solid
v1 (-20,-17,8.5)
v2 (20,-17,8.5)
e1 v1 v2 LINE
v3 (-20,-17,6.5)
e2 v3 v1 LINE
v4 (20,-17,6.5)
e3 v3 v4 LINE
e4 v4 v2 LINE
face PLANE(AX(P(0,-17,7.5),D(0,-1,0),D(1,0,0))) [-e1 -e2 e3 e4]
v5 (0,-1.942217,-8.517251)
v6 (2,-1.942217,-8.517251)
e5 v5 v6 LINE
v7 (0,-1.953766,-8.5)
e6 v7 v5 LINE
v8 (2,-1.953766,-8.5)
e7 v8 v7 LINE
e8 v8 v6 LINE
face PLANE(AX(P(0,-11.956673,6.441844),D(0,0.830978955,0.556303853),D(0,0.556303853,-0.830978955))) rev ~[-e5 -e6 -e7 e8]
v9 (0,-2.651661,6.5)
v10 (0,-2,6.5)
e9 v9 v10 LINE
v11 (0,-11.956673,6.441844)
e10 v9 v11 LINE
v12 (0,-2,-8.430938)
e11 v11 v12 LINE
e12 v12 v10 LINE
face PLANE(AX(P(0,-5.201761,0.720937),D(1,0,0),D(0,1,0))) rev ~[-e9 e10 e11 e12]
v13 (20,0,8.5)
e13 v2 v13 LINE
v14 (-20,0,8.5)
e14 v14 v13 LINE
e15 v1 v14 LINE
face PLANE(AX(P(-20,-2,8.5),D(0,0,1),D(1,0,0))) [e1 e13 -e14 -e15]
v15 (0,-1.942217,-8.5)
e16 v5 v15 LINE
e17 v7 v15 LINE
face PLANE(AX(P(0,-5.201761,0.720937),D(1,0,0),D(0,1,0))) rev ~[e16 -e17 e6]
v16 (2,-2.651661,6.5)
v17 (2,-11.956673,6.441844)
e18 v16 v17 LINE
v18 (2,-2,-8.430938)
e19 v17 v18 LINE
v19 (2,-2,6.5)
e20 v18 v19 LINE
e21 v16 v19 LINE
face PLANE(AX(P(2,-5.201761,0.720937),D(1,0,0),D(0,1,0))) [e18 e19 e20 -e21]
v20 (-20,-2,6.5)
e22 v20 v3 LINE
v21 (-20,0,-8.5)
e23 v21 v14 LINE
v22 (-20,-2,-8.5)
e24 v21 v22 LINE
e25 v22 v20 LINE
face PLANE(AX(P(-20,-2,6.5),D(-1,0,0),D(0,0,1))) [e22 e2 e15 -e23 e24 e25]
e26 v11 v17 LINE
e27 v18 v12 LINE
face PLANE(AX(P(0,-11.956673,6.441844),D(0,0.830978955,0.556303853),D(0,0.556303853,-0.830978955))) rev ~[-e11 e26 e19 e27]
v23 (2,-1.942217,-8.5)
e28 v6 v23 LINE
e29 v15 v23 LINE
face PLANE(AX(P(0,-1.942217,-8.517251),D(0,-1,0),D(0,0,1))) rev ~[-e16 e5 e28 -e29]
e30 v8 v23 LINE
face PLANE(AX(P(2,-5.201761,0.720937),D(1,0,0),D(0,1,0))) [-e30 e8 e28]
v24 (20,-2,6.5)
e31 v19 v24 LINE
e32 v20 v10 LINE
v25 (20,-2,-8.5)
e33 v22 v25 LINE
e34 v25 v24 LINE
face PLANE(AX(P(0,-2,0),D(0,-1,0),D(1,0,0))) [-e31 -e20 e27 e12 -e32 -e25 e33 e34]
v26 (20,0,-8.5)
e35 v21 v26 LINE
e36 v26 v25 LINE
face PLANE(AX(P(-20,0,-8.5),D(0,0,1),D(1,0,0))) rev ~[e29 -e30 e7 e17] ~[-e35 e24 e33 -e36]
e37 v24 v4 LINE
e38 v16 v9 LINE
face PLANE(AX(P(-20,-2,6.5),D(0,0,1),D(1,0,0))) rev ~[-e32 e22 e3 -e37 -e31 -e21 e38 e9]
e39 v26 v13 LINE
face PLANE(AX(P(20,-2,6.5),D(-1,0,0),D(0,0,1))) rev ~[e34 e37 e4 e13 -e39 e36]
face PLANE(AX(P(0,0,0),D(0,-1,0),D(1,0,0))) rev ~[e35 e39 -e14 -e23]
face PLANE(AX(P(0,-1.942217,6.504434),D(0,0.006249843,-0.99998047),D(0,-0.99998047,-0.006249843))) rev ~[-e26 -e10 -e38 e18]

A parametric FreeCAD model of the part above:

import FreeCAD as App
import Part
import Sketcher

V = App.Vector


def add_polygon(sketch, points):
    """Adds a closed chain of lines whose ends are joined by coincident constraints."""
    first, n = sketch.GeometryCount, len(points)
    for a, b in zip(points, points[1:] + points[:1]):
        sketch.addGeometry(Part.LineSegment(App.Vector(*a, 0), App.Vector(*b, 0)), False)
    for i in range(n):
        sketch.addConstraint(Sketcher.Constraint("Coincident", first + i, 2, first + (i + 1) % n, 1))

doc = App.newDocument("Part")
body = doc.addObject("PartDesign::Body", "Body")

# Sketch on XZ plane
sketch1 = doc.addObject("Sketcher::SketchObject", "Sketch")
body.addObject(sketch1)
sketch1.AttachmentSupport = (doc.XZ_Plane, [""])
sketch1.MapMode = "FlatFace"
add_polygon(sketch1, [(-20, 8.5), (-20, -8.5), (20, -8.5), (20, 8.5)])  # lines 0-3
sketch1.addConstraint(Sketcher.Constraint("Vertical", 0))
sketch1.addConstraint(Sketcher.Constraint("Horizontal", 1))
sketch1.addConstraint(Sketcher.Constraint("Vertical", 2))
sketch1.addConstraint(Sketcher.Constraint("Horizontal", 3))
sketch1.addConstraint(Sketcher.Constraint("Symmetric", 0, 2, 2, 2, -1, 1))
sketch1.addConstraint(Sketcher.Constraint("DistanceX", 1, 1, 1, 2, 40.0))
sketch1.addConstraint(Sketcher.Constraint("DistanceY", 0, 2, 0, 1, 17.0))
pad1 = doc.addObject("PartDesign::Pad", "Pad")
body.addObject(pad1)
pad1.Profile = sketch1
pad1.Length = 2

# Sketch on XZ plane
sketch2 = doc.addObject("Sketcher::SketchObject", "Sketch001")
body.addObject(sketch2)
sketch2.AttachmentSupport = (doc.XZ_Plane, [""])
sketch2.MapMode = "FlatFace"
sketch2.AttachmentOffset = App.Placement(V(0, 0, 2), App.Rotation())
add_polygon(sketch2, [(-20, 8.5), (-20, 6.5), (20, 6.5), (20, 8.5)])  # lines 0-3
sketch2.addConstraint(Sketcher.Constraint("Vertical", 0))
sketch2.addConstraint(Sketcher.Constraint("Horizontal", 1))
sketch2.addConstraint(Sketcher.Constraint("Vertical", 2))
sketch2.addConstraint(Sketcher.Constraint("Horizontal", 3))
sketch2.addConstraint(Sketcher.Constraint("DistanceX", 1, 1, 1, 2, 40.0))
sketch2.addConstraint(Sketcher.Constraint("DistanceY", 0, 2, 0, 1, 2.0))
sketch2.addConstraint(Sketcher.Constraint("DistanceX", 0, 2, -1, 1, 20.0))
sketch2.addConstraint(Sketcher.Constraint("DistanceY", -1, 1, 0, 2, 6.5))
pad2 = doc.addObject("PartDesign::Pad", "Pad001")
body.addObject(pad2)
pad2.Profile = sketch2
pad2.Length = 15

# Sketch on YZ plane
sketch3 = doc.addObject("Sketcher::SketchObject", "Sketch002")
body.addObject(sketch3)
sketch3.AttachmentSupport = (doc.YZ_Plane, [""])
sketch3.MapMode = "FlatFace"
add_polygon(sketch3, [(-1.942217, 6.504434), (-11.956673, 6.441844), (-1.942217, -8.517251)])  # lines 0-2
sketch3.addConstraint(Sketcher.Constraint("Vertical", 2))
sketch3.addConstraint(Sketcher.Constraint("Distance", 0, 10.014652))
sketch3.addConstraint(Sketcher.Constraint("DistanceY", 2, 1, 2, 2, 15.021685))
sketch3.addConstraint(Sketcher.Constraint("DistanceY", 1, 2, -1, 1, 8.517251))
sketch3.addConstraint(Sketcher.Constraint("DistanceY", 0, 2, 2, 2, 0.06259))
sketch3.addConstraint(Sketcher.Constraint("DistanceX", 0, 2, -1, 1, 11.956673))
pad3 = doc.addObject("PartDesign::Pad", "Pad002")
body.addObject(pad3)
pad3.Profile = sketch3
pad3.Length = 2

doc.recompute()
